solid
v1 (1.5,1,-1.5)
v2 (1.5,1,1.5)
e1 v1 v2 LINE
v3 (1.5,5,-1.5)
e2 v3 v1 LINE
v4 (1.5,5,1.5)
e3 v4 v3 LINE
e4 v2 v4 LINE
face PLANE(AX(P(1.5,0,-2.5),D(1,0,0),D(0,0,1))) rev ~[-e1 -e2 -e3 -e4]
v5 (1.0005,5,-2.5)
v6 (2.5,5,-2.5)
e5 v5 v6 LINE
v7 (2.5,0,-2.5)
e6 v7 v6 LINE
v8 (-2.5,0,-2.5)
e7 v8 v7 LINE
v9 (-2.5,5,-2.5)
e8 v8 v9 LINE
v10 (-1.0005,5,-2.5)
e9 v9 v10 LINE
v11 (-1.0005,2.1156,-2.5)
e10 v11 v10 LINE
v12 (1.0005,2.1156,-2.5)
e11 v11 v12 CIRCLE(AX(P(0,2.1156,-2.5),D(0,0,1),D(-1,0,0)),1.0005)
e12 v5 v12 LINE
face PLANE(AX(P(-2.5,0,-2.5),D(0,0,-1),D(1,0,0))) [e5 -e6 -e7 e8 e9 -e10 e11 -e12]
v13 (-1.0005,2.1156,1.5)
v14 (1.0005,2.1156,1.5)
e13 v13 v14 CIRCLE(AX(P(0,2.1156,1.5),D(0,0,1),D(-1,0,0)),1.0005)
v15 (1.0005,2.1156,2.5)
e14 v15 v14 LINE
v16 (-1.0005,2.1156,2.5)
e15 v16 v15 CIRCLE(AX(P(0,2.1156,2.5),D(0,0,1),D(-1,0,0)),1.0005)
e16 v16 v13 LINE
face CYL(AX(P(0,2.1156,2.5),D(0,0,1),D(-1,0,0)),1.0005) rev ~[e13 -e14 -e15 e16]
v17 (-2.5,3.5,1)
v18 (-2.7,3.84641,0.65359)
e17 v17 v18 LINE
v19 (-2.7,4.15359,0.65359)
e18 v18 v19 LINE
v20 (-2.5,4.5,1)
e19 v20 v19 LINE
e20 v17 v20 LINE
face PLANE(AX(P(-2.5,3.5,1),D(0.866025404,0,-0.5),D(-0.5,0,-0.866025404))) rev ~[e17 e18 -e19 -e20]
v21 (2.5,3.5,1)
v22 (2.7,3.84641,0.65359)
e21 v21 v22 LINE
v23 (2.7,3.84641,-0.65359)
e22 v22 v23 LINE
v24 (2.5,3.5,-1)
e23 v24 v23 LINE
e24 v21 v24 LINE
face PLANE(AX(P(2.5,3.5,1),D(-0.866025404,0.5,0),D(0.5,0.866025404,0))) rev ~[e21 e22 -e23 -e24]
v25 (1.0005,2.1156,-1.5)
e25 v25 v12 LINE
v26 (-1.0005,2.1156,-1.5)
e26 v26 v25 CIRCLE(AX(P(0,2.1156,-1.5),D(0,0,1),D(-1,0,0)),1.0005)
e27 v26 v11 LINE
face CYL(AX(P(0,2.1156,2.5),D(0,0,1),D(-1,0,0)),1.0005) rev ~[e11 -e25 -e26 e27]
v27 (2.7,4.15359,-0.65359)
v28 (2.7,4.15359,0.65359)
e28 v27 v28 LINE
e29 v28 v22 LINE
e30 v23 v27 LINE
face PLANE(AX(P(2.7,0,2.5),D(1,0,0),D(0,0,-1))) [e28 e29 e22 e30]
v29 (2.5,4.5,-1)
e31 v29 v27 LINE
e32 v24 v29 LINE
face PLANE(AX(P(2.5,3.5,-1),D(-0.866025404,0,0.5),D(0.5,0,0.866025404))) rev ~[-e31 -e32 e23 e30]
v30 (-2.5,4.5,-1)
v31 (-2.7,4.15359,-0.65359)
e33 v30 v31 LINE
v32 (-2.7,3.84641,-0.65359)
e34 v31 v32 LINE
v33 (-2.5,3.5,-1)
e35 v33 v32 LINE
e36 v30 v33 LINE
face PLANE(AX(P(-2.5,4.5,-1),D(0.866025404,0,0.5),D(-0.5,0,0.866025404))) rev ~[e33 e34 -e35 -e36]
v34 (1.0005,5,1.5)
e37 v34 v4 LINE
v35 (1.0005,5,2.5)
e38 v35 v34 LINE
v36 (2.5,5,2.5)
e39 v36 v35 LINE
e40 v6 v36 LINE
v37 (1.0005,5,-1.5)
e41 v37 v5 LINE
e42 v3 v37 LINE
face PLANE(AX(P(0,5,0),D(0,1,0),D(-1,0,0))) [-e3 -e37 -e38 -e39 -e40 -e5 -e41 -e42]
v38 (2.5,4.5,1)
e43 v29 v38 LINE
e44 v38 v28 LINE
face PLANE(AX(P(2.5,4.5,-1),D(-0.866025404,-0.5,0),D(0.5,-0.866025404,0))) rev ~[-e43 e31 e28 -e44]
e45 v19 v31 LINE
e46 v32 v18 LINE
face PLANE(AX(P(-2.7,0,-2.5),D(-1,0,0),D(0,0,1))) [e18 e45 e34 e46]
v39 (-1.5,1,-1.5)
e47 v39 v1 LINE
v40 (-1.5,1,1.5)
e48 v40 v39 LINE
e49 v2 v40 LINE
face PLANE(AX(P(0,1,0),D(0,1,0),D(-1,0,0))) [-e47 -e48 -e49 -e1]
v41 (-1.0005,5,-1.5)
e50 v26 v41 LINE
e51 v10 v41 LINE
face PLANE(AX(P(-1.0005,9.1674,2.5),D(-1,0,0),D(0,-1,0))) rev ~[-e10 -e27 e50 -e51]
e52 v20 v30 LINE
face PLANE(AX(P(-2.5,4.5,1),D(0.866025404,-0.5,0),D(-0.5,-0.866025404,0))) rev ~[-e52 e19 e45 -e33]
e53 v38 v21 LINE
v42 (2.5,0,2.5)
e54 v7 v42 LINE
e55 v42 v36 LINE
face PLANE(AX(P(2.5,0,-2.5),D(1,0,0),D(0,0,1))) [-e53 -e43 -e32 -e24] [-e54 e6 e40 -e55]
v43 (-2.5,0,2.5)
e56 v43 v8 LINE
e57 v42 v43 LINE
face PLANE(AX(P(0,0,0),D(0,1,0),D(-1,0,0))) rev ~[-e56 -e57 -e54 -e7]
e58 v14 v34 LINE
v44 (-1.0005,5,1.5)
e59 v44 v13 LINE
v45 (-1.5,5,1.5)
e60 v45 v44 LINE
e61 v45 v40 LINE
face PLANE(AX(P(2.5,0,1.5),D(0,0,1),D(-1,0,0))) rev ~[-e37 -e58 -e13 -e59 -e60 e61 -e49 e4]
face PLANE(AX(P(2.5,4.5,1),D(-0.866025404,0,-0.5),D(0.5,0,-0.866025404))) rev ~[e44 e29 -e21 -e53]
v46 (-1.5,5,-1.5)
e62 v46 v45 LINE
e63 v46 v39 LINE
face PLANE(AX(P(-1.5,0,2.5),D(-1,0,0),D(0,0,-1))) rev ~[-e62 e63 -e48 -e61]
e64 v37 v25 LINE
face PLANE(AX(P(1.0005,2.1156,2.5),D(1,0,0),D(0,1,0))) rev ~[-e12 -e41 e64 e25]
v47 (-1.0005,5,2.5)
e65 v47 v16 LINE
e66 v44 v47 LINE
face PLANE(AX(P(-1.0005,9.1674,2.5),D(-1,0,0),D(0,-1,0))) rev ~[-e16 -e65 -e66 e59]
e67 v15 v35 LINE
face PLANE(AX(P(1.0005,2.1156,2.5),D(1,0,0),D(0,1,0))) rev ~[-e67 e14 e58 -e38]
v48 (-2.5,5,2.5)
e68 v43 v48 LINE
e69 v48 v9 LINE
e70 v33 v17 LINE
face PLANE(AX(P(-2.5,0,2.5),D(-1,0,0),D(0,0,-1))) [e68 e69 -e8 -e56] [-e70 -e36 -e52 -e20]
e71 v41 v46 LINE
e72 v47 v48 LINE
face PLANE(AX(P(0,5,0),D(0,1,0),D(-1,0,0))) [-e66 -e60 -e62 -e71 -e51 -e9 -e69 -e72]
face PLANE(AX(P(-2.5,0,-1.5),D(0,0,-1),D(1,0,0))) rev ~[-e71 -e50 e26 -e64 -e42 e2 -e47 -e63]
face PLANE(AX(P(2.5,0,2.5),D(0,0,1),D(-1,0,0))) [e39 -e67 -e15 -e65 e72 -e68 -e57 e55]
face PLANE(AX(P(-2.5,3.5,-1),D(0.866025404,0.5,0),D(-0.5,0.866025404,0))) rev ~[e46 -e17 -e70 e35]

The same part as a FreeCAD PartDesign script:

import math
import FreeCAD as App
import Part
import Sketcher

V = App.Vector


def faces_at(feature, points):
    """Names of the faces that lie closest to the given points."""
    faces = feature.Shape.Faces
    near = lambda p: min(range(len(faces)), key=lambda i: faces[i].distToShape(Part.Vertex(*p))[0])
    return sorted({f"Face{near(p) + 1}" for p in points})

doc = App.newDocument("Part")
body = doc.addObject("PartDesign::Body", "Body")

# Sketch on XZ plane
sketch1 = body.newObject("Sketcher::SketchObject", "Sketch")
sketch1.AttachmentSupport = (doc.getObject("XZ_Plane"), [""])
sketch1.MapMode = "FlatFace"
sketch1.addGeometry(Part.LineSegment(V(-2.5, 2.5, 0), V(2.5, 2.5, 0)), False)
sketch1.addGeometry(Part.LineSegment(V(2.5, 2.5, 0), V(2.5, -2.5, 0)), False)
sketch1.addGeometry(Part.LineSegment(V(2.5, -2.5, 0), V(-2.5, -2.5, 0)), False)
sketch1.addGeometry(Part.LineSegment(V(-2.5, -2.5, 0), V(-2.5, 2.5, 0)), False)
sketch1.addConstraint(Sketcher.Constraint("Coincident", 0, 2, 1, 1))
sketch1.addConstraint(Sketcher.Constraint("Coincident", 1, 2, 2, 1))
sketch1.addConstraint(Sketcher.Constraint("Coincident", 2, 2, 3, 1))
sketch1.addConstraint(Sketcher.Constraint("Coincident", 3, 2, 0, 1))
sketch1.addConstraint(Sketcher.Constraint("Horizontal", 0))
sketch1.addConstraint(Sketcher.Constraint("Vertical", 1))
sketch1.addConstraint(Sketcher.Constraint("Horizontal", 2))
sketch1.addConstraint(Sketcher.Constraint("Vertical", 3))
sketch1.addConstraint(Sketcher.Constraint("Symmetric", 0, 2, 2, 2, -1, 1))
sketch1.addConstraint(Sketcher.Constraint("Equal", 2, 1))
sketch1.addConstraint(Sketcher.Constraint("DistanceX", 0, 1, 0, 2, 5.0))
pad1 = body.newObject("PartDesign::Pad", "Pad")
pad1.Profile = sketch1
pad1.Length = 5
pad1.Reversed = True
doc.recompute()

thickness = body.newObject("PartDesign::Thickness", "Thickness")
thickness.Base = (pad1, faces_at(pad1, [(-0.833, 5, -0.833)]))
thickness.Value = 1
thickness.Reversed = True
thickness.Join = "Intersection"

# Sketch on XY plane
sketch2 = body.newObject("Sketcher::SketchObject", "Sketch001")
sketch2.AttachmentSupport = (doc.getObject("XY_Plane"), [""])
sketch2.MapMode = "FlatFace"
sketch2.AttachmentOffset = App.Placement(V(0, 0, 2.5), App.Rotation())
sketch2.addGeometry(Part.ArcOfCircle(Part.Circle(V(0, 9.1674, 0), V(0, 0, 1), 1.0005), math.radians(0), math.radians(180)), False)
sketch2.addGeometry(Part.LineSegment(V(-1.0005, 9.1674, 0), V(-1.0005, 2.1156, 0)), False)
sketch2.addGeometry(Part.ArcOfCircle(Part.Circle(V(0, 2.1156, 0), V(0, 0, 1), 1.0005), math.radians(180), math.radians(360)), False)
sketch2.addGeometry(Part.LineSegment(V(1.0005, 2.1156, 0), V(1.0005, 9.1674, 0)), False)
sketch2.addConstraint(Sketcher.Constraint("Tangent", 0, 2, 1, 1))
sketch2.addConstraint(Sketcher.Constraint("Tangent", 1, 2, 2, 1))
sketch2.addConstraint(Sketcher.Constraint("Tangent", 2, 2, 3, 1))
sketch2.addConstraint(Sketcher.Constraint("Tangent", 3, 2, 0, 1))
sketch2.addConstraint(Sketcher.Constraint("Vertical", 1))
sketch2.addConstraint(Sketcher.Constraint("Vertical", 3))
sketch2.addConstraint(Sketcher.Constraint("PointOnObject", 0, 3, -2))
sketch2.addConstraint(Sketcher.Constraint("Radius", 0, 1.0005))
sketch2.addConstraint(Sketcher.Constraint("DistanceY", 1, 2, 1, 1, 7.0518))
sketch2.addConstraint(Sketcher.Constraint("DistanceY", -1, 1, 0, 3, 9.1674))
pocket1 = body.newObject("PartDesign::Pocket", "Pocket")
pocket1.Profile = sketch2
pocket1.Type = "ThroughAll"

# Sketch on YZ plane
sketch3 = body.newObject("Sketcher::SketchObject", "Sketch002")
sketch3.AttachmentSupport = (doc.getObject("YZ_Plane"), [""])
sketch3.MapMode = "FlatFace"
sketch3.AttachmentOffset = App.Placement(V(0, 0, 2.5), App.Rotation())
sketch3.addGeometry(Part.LineSegment(V(4.5, 1, 0), V(3.5, 1, 0)), False)
sketch3.addGeometry(Part.LineSegment(V(3.5, 1, 0), V(3.5, -1, 0)), False)
sketch3.addGeometry(Part.LineSegment(V(3.5, -1, 0), V(4.5, -1, 0)), False)
sketch3.addGeometry(Part.LineSegment(V(4.5, -1, 0), V(4.5, 1, 0)), False)
sketch3.addConstraint(Sketcher.Constraint("Coincident", 0, 2, 1, 1))
sketch3.addConstraint(Sketcher.Constraint("Coincident", 1, 2, 2, 1))
sketch3.addConstraint(Sketcher.Constraint("Coincident", 2, 2, 3, 1))
sketch3.addConstraint(Sketcher.Constraint("Coincident", 3, 2, 0, 1))
sketch3.addConstraint(Sketcher.Constraint("Horizontal", 0))
sketch3.addConstraint(Sketcher.Constraint("Vertical", 1))
sketch3.addConstraint(Sketcher.Constraint("Horizontal", 2))
sketch3.addConstraint(Sketcher.Constraint("Vertical", 3))
sketch3.addConstraint(Sketcher.Constraint("DistanceX", 0, 2, 0, 1, 1.0))
sketch3.addConstraint(Sketcher.Constraint("DistanceY", 1, 2, 1, 1, 2.0))
sketch3.addConstraint(Sketcher.Constraint("DistanceY", -1, 1, 0, 2, 1.0))
sketch3.addConstraint(Sketcher.Constraint("DistanceX", -1, 1, 0, 2, 3.5))
pad2 = body.newObject("PartDesign::Pad", "Pad001")
pad2.Profile = sketch3
pad2.Length = 0.2
pad2.TaperAngle = -60

# Sketch on YZ plane
sketch4 = body.newObject("Sketcher::SketchObject", "Sketch003")
sketch4.AttachmentSupport = (doc.getObject("YZ_Plane"), [""])
sketch4.MapMode = "FlatFace"
sketch4.AttachmentOffset = App.Placement(V(0, 0, -2.5), App.Rotation())
sketch4.addGeometry(Part.LineSegment(V(4.5, -1, 0), V(3.5, -1, 0)), False)
sketch4.addGeometry(Part.LineSegment(V(3.5, -1, 0), V(3.5, 1, 0)), False)
sketch4.addGeometry(Part.LineSegment(V(3.5, 1, 0), V(4.5, 1, 0)), False)
sketch4.addGeometry(Part.LineSegment(V(4.5, 1, 0), V(4.5, -1, 0)), False)
sketch4.addConstraint(Sketcher.Constraint("Coincident", 0, 2, 1, 1))
sketch4.addConstraint(Sketcher.Constraint("Coincident", 1, 2, 2, 1))
sketch4.addConstraint(Sketcher.Constraint("Coincident", 2, 2, 3, 1))
sketch4.addConstraint(Sketcher.Constraint("Coincident", 3, 2, 0, 1))
sketch4.addConstraint(Sketcher.Constraint("Horizontal", 0))
sketch4.addConstraint(Sketcher.Constraint("Vertical", 1))
sketch4.addConstraint(Sketcher.Constraint("Horizontal", 2))
sketch4.addConstraint(Sketcher.Constraint("Vertical", 3))
sketch4.addConstraint(Sketcher.Constraint("DistanceX", 0, 2, 0, 1, 1.0))
sketch4.addConstraint(Sketcher.Constraint("DistanceY", 1, 1, 1, 2, 2.0))
sketch4.addConstraint(Sketcher.Constraint("DistanceY", 0, 2, -1, 1, 1.0))
sketch4.addConstraint(Sketcher.Constraint("DistanceX", -1, 1, 0, 2, 3.5))
pad3 = body.newObject("PartDesign::Pad", "Pad002")
pad3.Profile = sketch4
pad3.Length = 0.2
pad3.Reversed = True
pad3.TaperAngle = -60

doc.recompute()
